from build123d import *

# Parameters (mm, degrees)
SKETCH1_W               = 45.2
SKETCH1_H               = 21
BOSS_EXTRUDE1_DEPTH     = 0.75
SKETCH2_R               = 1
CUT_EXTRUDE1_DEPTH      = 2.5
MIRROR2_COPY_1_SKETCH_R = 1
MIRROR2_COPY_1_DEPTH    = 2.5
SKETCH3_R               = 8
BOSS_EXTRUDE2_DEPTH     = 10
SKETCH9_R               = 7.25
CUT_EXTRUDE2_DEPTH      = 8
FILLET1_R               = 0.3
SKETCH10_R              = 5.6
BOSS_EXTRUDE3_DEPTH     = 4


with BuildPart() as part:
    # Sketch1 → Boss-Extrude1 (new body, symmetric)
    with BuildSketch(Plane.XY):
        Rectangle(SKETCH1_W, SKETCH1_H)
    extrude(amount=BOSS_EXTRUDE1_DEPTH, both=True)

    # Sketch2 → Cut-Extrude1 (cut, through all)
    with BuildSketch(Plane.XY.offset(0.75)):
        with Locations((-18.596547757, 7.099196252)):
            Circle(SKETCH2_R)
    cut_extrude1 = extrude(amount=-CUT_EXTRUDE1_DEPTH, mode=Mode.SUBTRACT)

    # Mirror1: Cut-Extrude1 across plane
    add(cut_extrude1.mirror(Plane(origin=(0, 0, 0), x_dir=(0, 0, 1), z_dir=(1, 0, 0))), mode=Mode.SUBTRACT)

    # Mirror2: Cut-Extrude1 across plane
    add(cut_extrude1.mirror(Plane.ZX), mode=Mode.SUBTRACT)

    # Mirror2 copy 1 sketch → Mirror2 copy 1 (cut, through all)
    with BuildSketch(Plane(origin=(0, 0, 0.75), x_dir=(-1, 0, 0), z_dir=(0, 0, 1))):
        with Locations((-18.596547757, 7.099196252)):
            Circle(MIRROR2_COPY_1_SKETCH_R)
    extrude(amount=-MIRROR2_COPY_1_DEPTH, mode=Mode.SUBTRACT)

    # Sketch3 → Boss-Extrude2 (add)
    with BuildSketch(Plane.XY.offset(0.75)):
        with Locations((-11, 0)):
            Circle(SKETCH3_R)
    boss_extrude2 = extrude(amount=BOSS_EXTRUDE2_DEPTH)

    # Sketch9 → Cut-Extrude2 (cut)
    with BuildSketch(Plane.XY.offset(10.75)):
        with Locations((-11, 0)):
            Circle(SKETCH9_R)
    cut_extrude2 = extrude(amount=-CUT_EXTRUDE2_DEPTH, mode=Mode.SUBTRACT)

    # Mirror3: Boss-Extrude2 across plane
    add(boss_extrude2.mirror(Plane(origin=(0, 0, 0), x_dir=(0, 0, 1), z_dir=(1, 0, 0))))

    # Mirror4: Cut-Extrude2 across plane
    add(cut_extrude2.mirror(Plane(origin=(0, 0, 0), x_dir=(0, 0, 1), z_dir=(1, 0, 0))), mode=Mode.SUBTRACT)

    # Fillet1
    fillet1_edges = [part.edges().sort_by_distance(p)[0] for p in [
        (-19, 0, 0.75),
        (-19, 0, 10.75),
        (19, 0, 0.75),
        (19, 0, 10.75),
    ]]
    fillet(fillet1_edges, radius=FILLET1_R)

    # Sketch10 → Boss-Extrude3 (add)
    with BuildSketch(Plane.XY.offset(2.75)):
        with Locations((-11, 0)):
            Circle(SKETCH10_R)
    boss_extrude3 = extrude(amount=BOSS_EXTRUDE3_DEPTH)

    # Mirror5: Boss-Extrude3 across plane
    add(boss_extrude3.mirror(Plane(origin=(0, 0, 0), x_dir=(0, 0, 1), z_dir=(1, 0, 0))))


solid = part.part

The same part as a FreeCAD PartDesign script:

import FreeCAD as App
import Part
import Sketcher

V = App.Vector
Q = App.Units.Quantity


def edges_at(feature, points):
    """Names of the edges that pass closest to the given points."""
    edges = feature.Shape.Edges
    near = lambda p: min(range(len(edges)), key=lambda i: edges[i].distToShape(Part.Vertex(*p))[0])
    return sorted({f"Edge{near(p) + 1}" for p in points})


def add_polygon(sketch, points):
    """Adds a closed chain of lines whose ends are joined by coincident constraints."""
    first, n = sketch.GeometryCount, len(points)
    for a, b in zip(points, points[1:] + points[:1]):
        sketch.addGeometry(Part.LineSegment(App.Vector(*a, 0), App.Vector(*b, 0)), False)
    for i in range(n):
        sketch.addConstraint(Sketcher.Constraint("Coincident", first + i, 2, first + (i + 1) % n, 1))

doc = App.newDocument("Part")
params = doc.addObject("Spreadsheet::Sheet", "Params")
for row, (alias, value) in enumerate([
    ("sketch1_height", "21 mm"),
    ("sketch1_width", "45.2 mm"),
    ("pad1_length", "1.5 mm"),
    ("sketch2_diameter", "2 mm"),
    ("sketch3_diameter", "2 mm"),
    ("sketch4_diameter", "16 mm"),
    ("pad2_length", "10 mm"),
    ("sketch5_diameter", "14.5 mm"),
    ("pocket3_length", "8 mm"),
    ("fillet_radius", "0.3 mm"),
    ("sketch6_diameter", "11.2 mm"),
    ("pad3_length", "4 mm"),
], start=1):
    params.set(f"A{row}", alias)
    params.set(f"B{row}", "=" + value)
    params.setAlias(f"B{row}", alias)

body = doc.addObject("PartDesign::Body", "Body")

sketch1 = doc.addObject("Sketcher::SketchObject", "Sketch")
body.addObject(sketch1)
sketch1.AttachmentSupport = (doc.XY_Plane, [""])
sketch1.MapMode = "FlatFace"
add_polygon(sketch1, [(-23, 10), (-23, -10), (23, -10), (23, 10)])
sketch1.addConstraint(Sketcher.Constraint("Vertical", 0))
sketch1.addConstraint(Sketcher.Constraint("Horizontal", 1))
sketch1.addConstraint(Sketcher.Constraint("Vertical", 2))
sketch1.addConstraint(Sketcher.Constraint("Horizontal", 3))
sketch1.addConstraint(Sketcher.Constraint("Symmetric", 0, 2, 2, 2, -1, 1))
sketch1.addConstraint(Sketcher.Constraint("DistanceY", 0, 2, 0, 1, Q("21 mm")))
sketch1.addConstraint(Sketcher.Constraint("DistanceX", 1, 1, 1, 2, Q("45.2 mm")))
sketch1.setExpression("Constraints[9]", "Params.sketch1_height")
sketch1.setExpression("Constraints[10]", "Params.sketch1_width")
pad1 = doc.addObject("PartDesign::Pad", "Pad")
body.addObject(pad1)
pad1.Profile = sketch1
pad1.setExpression("Length", "Params.pad1_length")
pad1.Midplane = True

sketch2 = doc.addObject("Sketcher::SketchObject", "Sketch001")
body.addObject(sketch2)
sketch2.AttachmentSupport = (doc.XY_Plane, [""])
sketch2.MapMode = "FlatFace"
sketch2.AttachmentOffset = App.Placement(V(0, 0, 0.75), App.Rotation())
sketch2.addGeometry(Part.Circle(V(-18.6, 7.1, 0), V(0, 0, 1), 1), False)
sketch2.addConstraint(Sketcher.Constraint("Diameter", 0, Q("2 mm")))
sketch2.addConstraint(Sketcher.Constraint("DistanceX", 0, 3, -1, 1, Q("18.596548 mm")))
sketch2.addConstraint(Sketcher.Constraint("DistanceY", -1, 1, 0, 3, Q("7.099196 mm")))
sketch2.setExpression("Constraints[0]", "Params.sketch2_diameter")
pocket1 = doc.addObject("PartDesign::Pocket", "Pocket")
body.addObject(pocket1)
pocket1.Profile = sketch2
pocket1.Type = "ThroughAll"
doc.recompute()

mirrored = doc.addObject("PartDesign::Mirrored", "Mirrored")
body.addObject(mirrored)
mirrored.Originals = [pocket1]
mirrored.MirrorPlane = (doc.YZ_Plane, [""])
body.Tip = mirrored
doc.recompute()

mirrored2 = doc.addObject("PartDesign::Mirrored", "Mirrored001")
body.addObject(mirrored2)
mirrored2.Originals = [pocket1]
mirrored2.MirrorPlane = (doc.XZ_Plane, [""])
body.Tip = mirrored2

sketch3 = doc.addObject("Sketcher::SketchObject", "Sketch002")
body.addObject(sketch3)
sketch3.AttachmentSupport = (doc.XY_Plane, [""])
sketch3.MapMode = "FlatFace"
sketch3.AttachmentOffset = App.Placement(V(0, 0, 0.75), App.Rotation())
sketch3.addGeometry(Part.Circle(V(18.6, -7.1, 0), V(0, 0, 1), 1), False)
sketch3.addConstraint(Sketcher.Constraint("Diameter", 0, Q("2 mm")))
sketch3.addConstraint(Sketcher.Constraint("DistanceX", -1, 1, 0, 3, Q("18.596548 mm")))
sketch3.addConstraint(Sketcher.Constraint("DistanceY", 0, 3, -1, 1, Q("7.099196 mm")))
sketch3.setExpression("Constraints[0]", "Params.sketch3_diameter")
pocket2 = doc.addObject("PartDesign::Pocket", "Pocket001")
body.addObject(pocket2)
pocket2.Profile = sketch3
pocket2.Type = "ThroughAll"

sketch4 = doc.addObject("Sketcher::SketchObject", "Sketch003")
body.addObject(sketch4)
sketch4.AttachmentSupport = (doc.XY_Plane, [""])
sketch4.MapMode = "FlatFace"
sketch4.AttachmentOffset = App.Placement(V(0, 0, 0.75), App.Rotation())
sketch4.addGeometry(Part.Circle(V(-11, 0, 0), V(0, 0, 1), 8), False)
sketch4.addConstraint(Sketcher.Constraint("PointOnObject", 0, 3, -1))
sketch4.addConstraint(Sketcher.Constraint("Diameter", 0, Q("16 mm")))
sketch4.addConstraint(Sketcher.Constraint("DistanceX", 0, 3, -1, 1, Q("11 mm")))
sketch4.setExpression("Constraints[1]", "Params.sketch4_diameter")
pad2 = doc.addObject("PartDesign::Pad", "Pad001")
body.addObject(pad2)
pad2.Profile = sketch4
pad2.setExpression("Length", "Params.pad2_length")

sketch5 = doc.addObject("Sketcher::SketchObject", "Sketch004")
body.addObject(sketch5)
sketch5.AttachmentSupport = (doc.XY_Plane, [""])
sketch5.MapMode = "FlatFace"
sketch5.AttachmentOffset = App.Placement(V(0, 0, 10.75), App.Rotation())
sketch5.addGeometry(Part.Circle(V(-11, 0, 0), V(0, 0, 1), 7), False)
sketch5.addConstraint(Sketcher.Constraint("PointOnObject", 0, 3, -1))
sketch5.addConstraint(Sketcher.Constraint("Diameter", 0, Q("14.5 mm")))
sketch5.addConstraint(Sketcher.Constraint("DistanceX", 0, 3, -1, 1, Q("11 mm")))
sketch5.setExpression("Constraints[1]", "Params.sketch5_diameter")
pocket3 = doc.addObject("PartDesign::Pocket", "Pocket002")
body.addObject(pocket3)
pocket3.Profile = sketch5
pocket3.setExpression("Length", "Params.pocket3_length")
doc.recompute()

mirrored3 = doc.addObject("PartDesign::Mirrored", "Mirrored002")
body.addObject(mirrored3)
mirrored3.Originals = [pad2]
mirrored3.MirrorPlane = (doc.YZ_Plane, [""])
body.Tip = mirrored3
doc.recompute()

mirrored4 = doc.addObject("PartDesign::Mirrored", "Mirrored003")
body.addObject(mirrored4)
mirrored4.Originals = [pocket3]
mirrored4.MirrorPlane = (doc.YZ_Plane, [""])
body.Tip = mirrored4
doc.recompute()

fillet = doc.addObject("PartDesign::Fillet", "Fillet")
body.addObject(fillet)
fillet.Base = (mirrored4, edges_at(mirrored4, [
    (-19, 0, 0.75),
    (-19, 0, 10.75),
    (19, 0, 0.75),
    (19, 0, 10.75),
]))
fillet.setExpression("Radius", "Params.fillet_radius")

sketch6 = doc.addObject("Sketcher::SketchObject", "Sketch005")
body.addObject(sketch6)
sketch6.AttachmentSupport = (doc.XY_Plane, [""])
sketch6.MapMode = "FlatFace"
sketch6.AttachmentOffset = App.Placement(V(0, 0, 2.75), App.Rotation())
sketch6.addGeometry(Part.Circle(V(-11, 0, 0), V(0, 0, 1), 6), False)
sketch6.addConstraint(Sketcher.Constraint("PointOnObject", 0, 3, -1))
sketch6.addConstraint(Sketcher.Constraint("Diameter", 0, Q("11.2 mm")))
sketch6.addConstraint(Sketcher.Constraint("DistanceX", 0, 3, -1, 1, Q("11 mm")))
sketch6.setExpression("Constraints[1]", "Params.sketch6_diameter")
pad3 = doc.addObject("PartDesign::Pad", "Pad002")
body.addObject(pad3)
pad3.Profile = sketch6
pad3.setExpression("Length", "Params.pad3_length")
doc.recompute()

mirrored5 = doc.addObject("PartDesign::Mirrored", "Mirrored004")
body.addObject(mirrored5)
mirrored5.Originals = [pad3]
mirrored5.MirrorPlane = (doc.YZ_Plane, [""])
body.Tip = mirrored5

doc.recompute()
